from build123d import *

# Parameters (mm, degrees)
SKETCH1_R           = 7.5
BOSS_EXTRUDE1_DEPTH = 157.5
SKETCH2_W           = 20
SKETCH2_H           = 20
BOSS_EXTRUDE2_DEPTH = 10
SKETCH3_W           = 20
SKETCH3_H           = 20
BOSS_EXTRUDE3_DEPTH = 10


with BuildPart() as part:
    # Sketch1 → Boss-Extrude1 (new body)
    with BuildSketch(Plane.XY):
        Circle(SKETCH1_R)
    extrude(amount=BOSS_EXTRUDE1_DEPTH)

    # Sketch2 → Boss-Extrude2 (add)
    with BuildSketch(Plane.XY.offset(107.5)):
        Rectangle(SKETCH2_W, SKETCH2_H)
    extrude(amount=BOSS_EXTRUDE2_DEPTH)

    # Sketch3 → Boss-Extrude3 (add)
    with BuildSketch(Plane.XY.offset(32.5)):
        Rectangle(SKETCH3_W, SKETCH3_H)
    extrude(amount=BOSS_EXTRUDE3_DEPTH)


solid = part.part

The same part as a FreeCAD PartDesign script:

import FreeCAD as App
import Part
import Sketcher

V = App.Vector
Q = App.Units.Quantity


def add_polygon(sketch, points):
    """Adds a closed chain of lines whose ends are joined by coincident constraints."""
    first, n = sketch.GeometryCount, len(points)
    for a, b in zip(points, points[1:] + points[:1]):
        sketch.addGeometry(Part.LineSegment(App.Vector(*a, 0), App.Vector(*b, 0)), False)
    for i in range(n):
        sketch.addConstraint(Sketcher.Constraint("Coincident", first + i, 2, first + (i + 1) % n, 1))

doc = App.newDocument("Part")
body = doc.addObject("PartDesign::Body", "Body")

sketch1 = body.newObject("Sketcher::SketchObject", "Sketch")
sketch1.AttachmentSupport = (doc.getObject("XY_Plane"), [""])
sketch1.MapMode = "FlatFace"
sketch1.addGeometry(Part.Circle(V(0, 0, 0), V(0, 0, 1), 8), False)
sketch1.addConstraint(Sketcher.Constraint("Coincident", 0, 3, -1, 1))
sketch1.addConstraint(Sketcher.Constraint("Diameter", 0, Q("15 mm")))
pad1 = body.newObject("PartDesign::Pad", "Pad")
pad1.Profile = sketch1
pad1.Length = 157.5

sketch2 = body.newObject("Sketcher::SketchObject", "Sketch001")
sketch2.AttachmentSupport = (doc.getObject("XY_Plane"), [""])
sketch2.MapMode = "FlatFace"
sketch2.AttachmentOffset = App.Placement(V(0, 0, 107.5), App.Rotation())
add_polygon(sketch2, [(-10, 10), (-10, -10), (10, -10), (10, 10)])
sketch2.addConstraint(Sketcher.Constraint("Vertical", 0))
sketch2.addConstraint(Sketcher.Constraint("Horizontal", 1))
sketch2.addConstraint(Sketcher.Constraint("Vertical", 2))
sketch2.addConstraint(Sketcher.Constraint("Horizontal", 3))
sketch2.addConstraint(Sketcher.Constraint("Symmetric", 0, 2, 2, 2, -1, 1))
sketch2.addConstraint(Sketcher.Constraint("Equal", 3, 0))
sketch2.addConstraint(Sketcher.Constraint("DistanceX", 1, 1, 1, 2, Q("20 mm")))
pad2 = body.newObject("PartDesign::Pad", "Pad001")
pad2.Profile = sketch2
pad2.Length = 10

sketch3 = body.newObject("Sketcher::SketchObject", "Sketch002")
sketch3.AttachmentSupport = (doc.getObject("XY_Plane"), [""])
sketch3.MapMode = "FlatFace"
sketch3.AttachmentOffset = App.Placement(V(0, 0, 32.5), App.Rotation())
add_polygon(sketch3, [(-10, 10), (-10, -10), (10, -10), (10, 10)])
sketch3.addConstraint(Sketcher.Constraint("Vertical", 0))
sketch3.addConstraint(Sketcher.Constraint("Horizontal", 1))
sketch3.addConstraint(Sketcher.Constraint("Vertical", 2))
sketch3.addConstraint(Sketcher.Constraint("Horizontal", 3))
sketch3.addConstraint(Sketcher.Constraint("Symmetric", 0, 2, 2, 2, -1, 1))
sketch3.addConstraint(Sketcher.Constraint("Equal", 3, 0))
sketch3.addConstraint(Sketcher.Constraint("DistanceX", 1, 1, 1, 2, Q("20 mm")))
pad3 = body.newObject("PartDesign::Pad", "Pad002")
pad3.Profile = sketch3
pad3.Length = 10

doc.recompute()
